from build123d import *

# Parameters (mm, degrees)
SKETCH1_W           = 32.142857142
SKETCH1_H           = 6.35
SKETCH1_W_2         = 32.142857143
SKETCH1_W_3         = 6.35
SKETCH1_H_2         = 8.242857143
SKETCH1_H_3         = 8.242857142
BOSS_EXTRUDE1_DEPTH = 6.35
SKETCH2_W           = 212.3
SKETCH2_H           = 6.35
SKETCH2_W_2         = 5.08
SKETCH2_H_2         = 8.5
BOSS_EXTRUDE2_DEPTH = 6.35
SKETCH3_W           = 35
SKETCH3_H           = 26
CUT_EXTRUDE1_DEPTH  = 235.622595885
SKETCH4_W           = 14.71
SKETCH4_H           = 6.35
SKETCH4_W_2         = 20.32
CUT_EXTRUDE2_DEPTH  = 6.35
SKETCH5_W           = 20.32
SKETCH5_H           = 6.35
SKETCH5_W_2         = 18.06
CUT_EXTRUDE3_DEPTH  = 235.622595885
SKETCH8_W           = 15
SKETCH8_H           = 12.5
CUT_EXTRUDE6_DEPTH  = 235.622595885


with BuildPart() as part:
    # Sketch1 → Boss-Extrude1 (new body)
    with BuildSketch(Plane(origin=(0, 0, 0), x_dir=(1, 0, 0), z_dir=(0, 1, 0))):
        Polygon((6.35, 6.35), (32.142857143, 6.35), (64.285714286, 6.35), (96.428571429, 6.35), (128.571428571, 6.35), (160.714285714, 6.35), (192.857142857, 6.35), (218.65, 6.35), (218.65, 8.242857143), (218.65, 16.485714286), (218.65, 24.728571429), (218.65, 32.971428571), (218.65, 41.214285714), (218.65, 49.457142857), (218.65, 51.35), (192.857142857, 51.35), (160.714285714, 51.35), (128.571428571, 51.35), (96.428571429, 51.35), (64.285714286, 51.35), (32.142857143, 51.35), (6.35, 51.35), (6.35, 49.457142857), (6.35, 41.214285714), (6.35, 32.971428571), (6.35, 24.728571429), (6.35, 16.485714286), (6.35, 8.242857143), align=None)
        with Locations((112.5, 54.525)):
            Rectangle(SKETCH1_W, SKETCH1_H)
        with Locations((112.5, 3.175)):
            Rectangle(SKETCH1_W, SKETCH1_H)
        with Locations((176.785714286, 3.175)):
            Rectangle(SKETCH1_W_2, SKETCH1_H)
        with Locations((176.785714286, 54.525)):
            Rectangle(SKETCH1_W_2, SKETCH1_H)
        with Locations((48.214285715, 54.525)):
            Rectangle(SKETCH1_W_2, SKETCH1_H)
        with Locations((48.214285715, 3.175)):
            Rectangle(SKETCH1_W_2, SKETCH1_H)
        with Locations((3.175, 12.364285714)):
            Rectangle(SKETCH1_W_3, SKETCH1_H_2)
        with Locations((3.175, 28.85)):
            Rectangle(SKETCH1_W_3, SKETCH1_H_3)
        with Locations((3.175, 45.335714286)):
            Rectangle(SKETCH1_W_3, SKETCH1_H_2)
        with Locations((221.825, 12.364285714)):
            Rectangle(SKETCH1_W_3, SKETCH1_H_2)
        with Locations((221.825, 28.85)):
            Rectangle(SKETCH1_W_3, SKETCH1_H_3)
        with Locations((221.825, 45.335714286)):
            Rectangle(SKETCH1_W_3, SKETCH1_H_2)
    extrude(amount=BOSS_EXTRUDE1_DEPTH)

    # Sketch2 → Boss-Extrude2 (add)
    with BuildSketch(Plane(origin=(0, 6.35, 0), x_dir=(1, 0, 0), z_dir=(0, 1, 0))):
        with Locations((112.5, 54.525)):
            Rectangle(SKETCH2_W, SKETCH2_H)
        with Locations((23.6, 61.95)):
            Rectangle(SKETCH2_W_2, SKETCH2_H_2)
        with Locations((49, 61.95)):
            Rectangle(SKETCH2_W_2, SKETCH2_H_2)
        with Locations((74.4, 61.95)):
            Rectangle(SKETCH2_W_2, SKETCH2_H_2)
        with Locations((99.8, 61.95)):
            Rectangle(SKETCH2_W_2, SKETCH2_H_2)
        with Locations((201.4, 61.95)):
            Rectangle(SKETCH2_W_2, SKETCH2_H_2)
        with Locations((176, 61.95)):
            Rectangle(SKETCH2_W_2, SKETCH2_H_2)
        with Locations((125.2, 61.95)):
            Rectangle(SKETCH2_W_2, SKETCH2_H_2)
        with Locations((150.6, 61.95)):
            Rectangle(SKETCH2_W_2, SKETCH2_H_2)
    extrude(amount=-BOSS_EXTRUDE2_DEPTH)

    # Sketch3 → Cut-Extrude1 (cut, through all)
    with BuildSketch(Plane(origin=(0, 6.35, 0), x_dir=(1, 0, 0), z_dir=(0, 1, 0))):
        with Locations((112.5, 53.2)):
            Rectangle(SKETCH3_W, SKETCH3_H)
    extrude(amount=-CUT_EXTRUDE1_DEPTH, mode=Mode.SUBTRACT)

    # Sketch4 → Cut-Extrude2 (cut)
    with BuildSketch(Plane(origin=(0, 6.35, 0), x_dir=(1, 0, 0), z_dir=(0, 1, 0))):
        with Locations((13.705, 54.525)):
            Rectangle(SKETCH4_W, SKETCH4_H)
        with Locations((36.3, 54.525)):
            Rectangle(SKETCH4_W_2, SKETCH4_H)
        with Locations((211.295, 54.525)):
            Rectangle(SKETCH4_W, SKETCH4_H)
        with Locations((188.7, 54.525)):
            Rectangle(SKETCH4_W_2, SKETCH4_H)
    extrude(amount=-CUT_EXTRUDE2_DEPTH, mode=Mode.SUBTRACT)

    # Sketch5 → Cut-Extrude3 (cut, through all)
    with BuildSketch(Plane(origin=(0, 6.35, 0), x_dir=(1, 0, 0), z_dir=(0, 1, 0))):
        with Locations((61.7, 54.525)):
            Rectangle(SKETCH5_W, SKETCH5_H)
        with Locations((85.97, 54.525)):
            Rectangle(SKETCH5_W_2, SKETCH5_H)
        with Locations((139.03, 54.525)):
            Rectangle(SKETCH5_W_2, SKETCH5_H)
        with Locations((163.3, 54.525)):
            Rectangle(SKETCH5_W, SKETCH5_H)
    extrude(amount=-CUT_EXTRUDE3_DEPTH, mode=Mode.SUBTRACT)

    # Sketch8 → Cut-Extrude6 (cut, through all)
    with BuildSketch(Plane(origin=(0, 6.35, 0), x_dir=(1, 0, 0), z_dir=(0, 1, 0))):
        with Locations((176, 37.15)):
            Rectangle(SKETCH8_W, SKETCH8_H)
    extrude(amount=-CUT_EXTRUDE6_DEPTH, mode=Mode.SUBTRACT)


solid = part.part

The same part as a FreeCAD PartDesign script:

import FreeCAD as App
import Part
import Sketcher


def add_polygon(sketch, points):
    """Adds a closed chain of lines whose ends are joined by coincident constraints."""
    first, n = sketch.GeometryCount, len(points)
    for a, b in zip(points, points[1:] + points[:1]):
        sketch.addGeometry(Part.LineSegment(App.Vector(*a, 0), App.Vector(*b, 0)), False)
    for i in range(n):
        sketch.addConstraint(Sketcher.Constraint("Coincident", first + i, 2, first + (i + 1) % n, 1))

doc = App.newDocument("Part")
body = doc.addObject("PartDesign::Body", "Body")

# Sketch on XZ plane
sketch1 = body.newObject("Sketcher::SketchObject", "Sketch")
sketch1.AttachmentSupport = (doc.getObject("XZ_Plane"), [""])
sketch1.MapMode = "FlatFace"
add_polygon(sketch1, [(6.35, -6.35), (32.142857, -6.35), (32.142857, 0), (64.285714, 0), (64.285714, -6.35), (96.428571, -6.35), (96.428571, 0), (128.571429, 0), (128.571429, -6.35), (160.714286, -6.35), (160.714286, 0), (192.857143, 0), (192.857143, -6.35), (218.65, -6.35), (218.65, -8.242857), (225, -8.242857), (225, -16.485714), (218.65, -16.485714), (218.65, -24.728571), (225, -24.728571), (225, -32.971429), (218.65, -32.971429), (218.65, -41.214286), (225, -41.214286), (225, -49.457143), (218.65, -49.457143), (218.65, -51.35), (192.857143, -51.35), (192.857143, -57.7), (160.714286, -57.7), (160.714286, -51.35), (128.571429, -51.35), (128.571429, -57.7), (96.428571, -57.7), (96.428571, -51.35), (64.285714, -51.35), (64.285714, -57.7), (32.142857, -57.7), (32.142857, -51.35), (6.35, -51.35), (6.35, -49.457143), (0, -49.457143), (0, -41.214286), (6.35, -41.214286), (6.35, -32.971429), (0, -32.971429), (0, -24.728571), (6.35, -24.728571), (6.35, -16.485714), (0, -16.485714), (0, -8.242857), (6.35, -8.242857)])  # lines 0-51
sketch1.addConstraint(Sketcher.Constraint("Horizontal", 0))
sketch1.addConstraint(Sketcher.Constraint("Vertical", 1))
sketch1.addConstraint(Sketcher.Constraint("Horizontal", 2))
sketch1.addConstraint(Sketcher.Constraint("Vertical", 3))
sketch1.addConstraint(Sketcher.Constraint("Horizontal", 4))
sketch1.addConstraint(Sketcher.Constraint("Vertical", 5))
sketch1.addConstraint(Sketcher.Constraint("Horizontal", 6))
sketch1.addConstraint(Sketcher.Constraint("Vertical", 7))
sketch1.addConstraint(Sketcher.Constraint("Horizontal", 8))
sketch1.addConstraint(Sketcher.Constraint("Vertical", 9))
sketch1.addConstraint(Sketcher.Constraint("Horizontal", 10))
sketch1.addConstraint(Sketcher.Constraint("Vertical", 11))
sketch1.addConstraint(Sketcher.Constraint("Horizontal", 12))
sketch1.addConstraint(Sketcher.Constraint("Vertical", 13))
sketch1.addConstraint(Sketcher.Constraint("Horizontal", 14))
sketch1.addConstraint(Sketcher.Constraint("Vertical", 15))
sketch1.addConstraint(Sketcher.Constraint("Horizontal", 16))
sketch1.addConstraint(Sketcher.Constraint("Vertical", 17))
sketch1.addConstraint(Sketcher.Constraint("Horizontal", 18))
sketch1.addConstraint(Sketcher.Constraint("Vertical", 19))
sketch1.addConstraint(Sketcher.Constraint("Horizontal", 20))
sketch1.addConstraint(Sketcher.Constraint("Vertical", 21))
sketch1.addConstraint(Sketcher.Constraint("Horizontal", 22))
sketch1.addConstraint(Sketcher.Constraint("Vertical", 23))
sketch1.addConstraint(Sketcher.Constraint("Horizontal", 24))
sketch1.addConstraint(Sketcher.Constraint("Vertical", 25))
sketch1.addConstraint(Sketcher.Constraint("Horizontal", 26))
sketch1.addConstraint(Sketcher.Constraint("Vertical", 27))
sketch1.addConstraint(Sketcher.Constraint("Horizontal", 28))
sketch1.addConstraint(Sketcher.Constraint("Vertical", 29))
sketch1.addConstraint(Sketcher.Constraint("Horizontal", 30))
sketch1.addConstraint(Sketcher.Constraint("Vertical", 31))
sketch1.addConstraint(Sketcher.Constraint("Horizontal", 32))
sketch1.addConstraint(Sketcher.Constraint("Vertical", 33))
sketch1.addConstraint(Sketcher.Constraint("Horizontal", 34))
sketch1.addConstraint(Sketcher.Constraint("Vertical", 35))
sketch1.addConstraint(Sketcher.Constraint("Horizontal", 36))
sketch1.addConstraint(Sketcher.Constraint("Vertical", 37))
sketch1.addConstraint(Sketcher.Constraint("Horizontal", 38))
sketch1.addConstraint(Sketcher.Constraint("Vertical", 39))
sketch1.addConstraint(Sketcher.Constraint("Horizontal", 40))
sketch1.addConstraint(Sketcher.Constraint("Vertical", 41))
sketch1.addConstraint(Sketcher.Constraint("Horizontal", 42))
sketch1.addConstraint(Sketcher.Constraint("Vertical", 43))
sketch1.addConstraint(Sketcher.Constraint("Horizontal", 44))
sketch1.addConstraint(Sketcher.Constraint("Vertical", 45))
sketch1.addConstraint(Sketcher.Constraint("Horizontal", 46))
sketch1.addConstraint(Sketcher.Constraint("Vertical", 47))
sketch1.addConstraint(Sketcher.Constraint("Horizontal", 48))
sketch1.addConstraint(Sketcher.Constraint("Vertical", 49))
sketch1.addConstraint(Sketcher.Constraint("Horizontal", 50))
sketch1.addConstraint(Sketcher.Constraint("Vertical", 51))
sketch1.addConstraint(Sketcher.Constraint("PointOnObject", 1, 2, -1))
sketch1.addConstraint(Sketcher.Constraint("PointOnObject", 5, 2, -1))
sketch1.addConstraint(Sketcher.Constraint("PointOnObject", 9, 2, -1))
sketch1.addConstraint(Sketcher.Constraint("PointOnObject", 40, 2, -2))
sketch1.addConstraint(Sketcher.Constraint("PointOnObject", 44, 2, -2))
sketch1.addConstraint(Sketcher.Constraint("PointOnObject", 48, 2, -2))
sketch1.addConstraint(Sketcher.Constraint("Horizontal", 0, 2, 3, 2))
sketch1.addConstraint(Sketcher.Constraint("Horizontal", 4, 2, 7, 2))
sketch1.addConstraint(Sketcher.Constraint("Horizontal", 8, 2, 11, 2))
sketch1.addConstraint(Sketcher.Constraint("Horizontal", 26, 2, 29, 2))
sketch1.addConstraint(Sketcher.Constraint("Horizontal", 28, 2, 31, 2))
sketch1.addConstraint(Sketcher.Constraint("Horizontal", 30, 2, 33, 2))
sketch1.addConstraint(Sketcher.Constraint("Horizontal", 32, 2, 35, 2))
sketch1.addConstraint(Sketcher.Constraint("Horizontal", 34, 2, 37, 2))
sketch1.addConstraint(Sketcher.Constraint("Horizontal", 24, 2, 39, 2))
sketch1.addConstraint(Sketcher.Constraint("Horizontal", 22, 2, 41, 2))
sketch1.addConstraint(Sketcher.Constraint("Horizontal", 20, 2, 43, 2))
sketch1.addConstraint(Sketcher.Constraint("Horizontal", 18, 2, 45, 2))
sketch1.addConstraint(Sketcher.Constraint("Horizontal", 16, 2, 47, 2))
sketch1.addConstraint(Sketcher.Constraint("Horizontal", 14, 2, 49, 2))
sketch1.addConstraint(Sketcher.Constraint("Vertical", 13, 2, 16, 2))
sketch1.addConstraint(Sketcher.Constraint("Vertical", 15, 2, 18, 2))
sketch1.addConstraint(Sketcher.Constraint("Vertical", 17, 2, 20, 2))
sketch1.addConstraint(Sketcher.Constraint("Vertical", 19, 2, 22, 2))
sketch1.addConstraint(Sketcher.Constraint("Vertical", 21, 2, 24, 2))
sketch1.addConstraint(Sketcher.Constraint("Vertical", 11, 2, 26, 2))
sketch1.addConstraint(Sketcher.Constraint("Vertical", 9, 2, 28, 2))
sketch1.addConstraint(Sketcher.Constraint("Vertical", 7, 2, 30, 2))
sketch1.addConstraint(Sketcher.Constraint("Vertical", 5, 2, 32, 2))
sketch1.addConstraint(Sketcher.Constraint("Vertical", 3, 2, 34, 2))
sketch1.addConstraint(Sketcher.Constraint("Vertical", 1, 2, 36, 2))
sketch1.addConstraint(Sketcher.Constraint("Vertical", 39, 2, 42, 2))
sketch1.addConstraint(Sketcher.Constraint("Vertical", 43, 2, 46, 2))
sketch1.addConstraint(Sketcher.Constraint("Vertical", 47, 2, 50, 2))
sketch1.addConstraint(Sketcher.Constraint("Equal", 2, 4))
sketch1.addConstraint(Sketcher.Constraint("Equal", 4, 6))
sketch1.addConstraint(Sketcher.Constraint("Equal", 6, 8))
sketch1.addConstraint(Sketcher.Constraint("Equal", 8, 10))
sketch1.addConstraint(Sketcher.Constraint("Equal", 0, 12))
sketch1.addConstraint(Sketcher.Constraint("Equal", 24, 40))
sketch1.addConstraint(Sketcher.Constraint("Equal", 50, 1))
sketch1.addConstraint(Sketcher.Constraint("Equal", 15, 17))
sketch1.addConstraint(Sketcher.Constraint("Equal", 17, 19))
sketch1.addConstraint(Sketcher.Constraint("Equal", 19, 21))
sketch1.addConstraint(Sketcher.Constraint("Equal", 21, 23))
sketch1.addConstraint(Sketcher.Constraint("Equal", 13, 25))
sketch1.addConstraint(Sketcher.Constraint("Equal", 11, 27))
sketch1.addConstraint(Sketcher.Constraint("DistanceX", -1, 1, 14, 2, 225.0))
sketch1.addConstraint(Sketcher.Constraint("DistanceY", 29, 2, 8, 2, 45.0))
sketch1.addConstraint(Sketcher.Constraint("DistanceX", 14, 1, 14, 2, 6.35))
sketch1.addConstraint(Sketcher.Constraint("DistanceX", 0, 1, 0, 2, 25.792857))
sketch1.addConstraint(Sketcher.Constraint("DistanceY", 13, 2, 13, 1, 1.892857))
pad1 = body.newObject("PartDesign::Pad", "Pad")
pad1.Profile = sketch1
pad1.Length = 6.35
pad1.Reversed = True

# Sketch on XZ plane
sketch2 = body.newObject("Sketcher::SketchObject", "Sketch001")
sketch2.AttachmentSupport = (doc.getObject("XZ_Plane"), [""])
sketch2.MapMode = "FlatFace"
sketch2.AttachmentOffset = App.Placement(App.Vector(0, 0, -6.35), App.Rotation())
add_polygon(sketch2, [(6.35, -57.7), (6.35, -51.35), (218.65, -51.35), (218.65, -57.7), (203.94, -57.7), (203.94, -66.2), (198.86, -66.2), (198.86, -57.7), (178.54, -57.7), (178.54, -66.2), (173.46, -66.2), (173.46, -57.7), (153.14, -57.7), (153.14, -66.2), (148.06, -66.2), (148.06, -57.7), (127.74, -57.7), (127.74, -66.2), (122.66, -66.2), (122.66, -57.7), (102.34, -57.7), (102.34, -66.2), (97.26, -66.2), (97.26, -57.7), (76.94, -57.7), (76.94, -66.2), (71.86, -66.2), (71.86, -57.7), (51.54, -57.7), (51.54, -66.2), (46.46, -66.2), (46.46, -57.7), (26.14, -57.7), (26.14, -66.2), (21.06, -66.2), (21.06, -57.7)])  # lines 0-35
sketch2.addConstraint(Sketcher.Constraint("Vertical", 0))
sketch2.addConstraint(Sketcher.Constraint("Horizontal", 1))
sketch2.addConstraint(Sketcher.Constraint("Vertical", 2))
sketch2.addConstraint(Sketcher.Constraint("Horizontal", 3))
sketch2.addConstraint(Sketcher.Constraint("Vertical", 4))
sketch2.addConstraint(Sketcher.Constraint("Horizontal", 5))
sketch2.addConstraint(Sketcher.Constraint("Vertical", 6))
sketch2.addConstraint(Sketcher.Constraint("Horizontal", 7))
sketch2.addConstraint(Sketcher.Constraint("Vertical", 8))
sketch2.addConstraint(Sketcher.Constraint("Horizontal", 9))
sketch2.addConstraint(Sketcher.Constraint("Vertical", 10))
sketch2.addConstraint(Sketcher.Constraint("Horizontal", 11))
sketch2.addConstraint(Sketcher.Constraint("Vertical", 12))
sketch2.addConstraint(Sketcher.Constraint("Horizontal", 13))
sketch2.addConstraint(Sketcher.Constraint("Vertical", 14))
sketch2.addConstraint(Sketcher.Constraint("Horizontal", 15))
sketch2.addConstraint(Sketcher.Constraint("Vertical", 16))
sketch2.addConstraint(Sketcher.Constraint("Horizontal", 17))
sketch2.addConstraint(Sketcher.Constraint("Vertical", 18))
sketch2.addConstraint(Sketcher.Constraint("Horizontal", 19))
sketch2.addConstraint(Sketcher.Constraint("Vertical", 20))
sketch2.addConstraint(Sketcher.Constraint("Horizontal", 21))
sketch2.addConstraint(Sketcher.Constraint("Vertical", 22))
sketch2.addConstraint(Sketcher.Constraint("Horizontal", 23))
sketch2.addConstraint(Sketcher.Constraint("Vertical", 24))
sketch2.addConstraint(Sketcher.Constraint("Horizontal", 25))
sketch2.addConstraint(Sketcher.Constraint("Vertical", 26))
sketch2.addConstraint(Sketcher.Constraint("Horizontal", 27))
sketch2.addConstraint(Sketcher.Constraint("Vertical", 28))
sketch2.addConstraint(Sketcher.Constraint("Horizontal", 29))
sketch2.addConstraint(Sketcher.Constraint("Vertical", 30))
sketch2.addConstraint(Sketcher.Constraint("Horizontal", 31))
sketch2.addConstraint(Sketcher.Constraint("Vertical", 32))
sketch2.addConstraint(Sketcher.Constraint("Horizontal", 33))
sketch2.addConstraint(Sketcher.Constraint("Vertical", 34))
sketch2.addConstraint(Sketcher.Constraint("Horizontal", 35))
sketch2.addConstraint(Sketcher.Constraint("Horizontal", 3, 2, 6, 2))
sketch2.addConstraint(Sketcher.Constraint("Horizontal", 5, 2, 8, 2))
sketch2.addConstraint(Sketcher.Constraint("Horizontal", 7, 2, 10, 2))
sketch2.addConstraint(Sketcher.Constraint("Horizontal", 9, 2, 12, 2))
sketch2.addConstraint(Sketcher.Constraint("Horizontal", 11, 2, 14, 2))
sketch2.addConstraint(Sketcher.Constraint("Horizontal", 13, 2, 16, 2))
sketch2.addConstraint(Sketcher.Constraint("Horizontal", 15, 2, 18, 2))
sketch2.addConstraint(Sketcher.Constraint("Horizontal", 17, 2, 20, 2))
sketch2.addConstraint(Sketcher.Constraint("Horizontal", 19, 2, 22, 2))
sketch2.addConstraint(Sketcher.Constraint("Horizontal", 21, 2, 24, 2))
sketch2.addConstraint(Sketcher.Constraint("Horizontal", 23, 2, 26, 2))
sketch2.addConstraint(Sketcher.Constraint("Horizontal", 25, 2, 28, 2))
sketch2.addConstraint(Sketcher.Constraint("Horizontal", 27, 2, 30, 2))
sketch2.addConstraint(Sketcher.Constraint("Horizontal", 29, 2, 32, 2))
sketch2.addConstraint(Sketcher.Constraint("Horizontal", 31, 2, 34, 2))
sketch2.addConstraint(Sketcher.Constraint("Equal", 5, 9))
sketch2.addConstraint(Sketcher.Constraint("Equal", 7, 11))
sketch2.addConstraint(Sketcher.Constraint("Equal", 9, 13))
sketch2.addConstraint(Sketcher.Constraint("Equal", 11, 15))
sketch2.addConstraint(Sketcher.Constraint("Equal", 13, 17))
sketch2.addConstraint(Sketcher.Constraint("Equal", 15, 19))
sketch2.addConstraint(Sketcher.Constraint("Equal", 17, 21))
sketch2.addConstraint(Sketcher.Constraint("Equal", 19, 23))
sketch2.addConstraint(Sketcher.Constraint("Equal", 21, 25))
sketch2.addConstraint(Sketcher.Constraint("Equal", 23, 27))
sketch2.addConstraint(Sketcher.Constraint("Equal", 25, 29))
sketch2.addConstraint(Sketcher.Constraint("Equal", 27, 31))
sketch2.addConstraint(Sketcher.Constraint("Equal", 29, 33))
sketch2.addConstraint(Sketcher.Constraint("Equal", 3, 35))
sketch2.addConstraint(Sketcher.Constraint("DistanceX", 1, 1, 1, 2, 212.3))
sketch2.addConstraint(Sketcher.Constraint("DistanceY", 4, 2, 4, 1, 8.5))
sketch2.addConstraint(Sketcher.Constraint("DistanceX", 3, 2, 3, 1, 14.71))
sketch2.addConstraint(Sketcher.Constraint("DistanceX", 5, 2, 5, 1, 5.08))
sketch2.addConstraint(Sketcher.Constraint("DistanceY", 0, 1, 0, 2, 6.35))
sketch2.addConstraint(Sketcher.Constraint("DistanceY", 2, 2, -1, 1, 57.7))
sketch2.addConstraint(Sketcher.Constraint("DistanceX", -1, 1, 0, 2, 6.35))
pad2 = body.newObject("PartDesign::Pad", "Pad001")
pad2.Profile = sketch2
pad2.Length = 6.35

# Sketch on XZ plane
sketch3 = body.newObject("Sketcher::SketchObject", "Sketch002")
sketch3.AttachmentSupport = (doc.getObject("XZ_Plane"), [""])
sketch3.MapMode = "FlatFace"
sketch3.AttachmentOffset = App.Placement(App.Vector(0, 0, -6.35), App.Rotation())
add_polygon(sketch3, [(95, -66.2), (95, -40.2), (130, -40.2), (130, -66.2)])  # lines 0-3
sketch3.addConstraint(Sketcher.Constraint("Vertical", 0))
sketch3.addConstraint(Sketcher.Constraint("Horizontal", 1))
sketch3.addConstraint(Sketcher.Constraint("Vertical", 2))
sketch3.addConstraint(Sketcher.Constraint("Horizontal", 3))
sketch3.addConstraint(Sketcher.Constraint("DistanceX", 1, 1, 1, 2, 35.0))
sketch3.addConstraint(Sketcher.Constraint("DistanceY", 0, 1, 0, 2, 26.0))
sketch3.addConstraint(Sketcher.Constraint("DistanceX", -1, 1, 0, 2, 95.0))
sketch3.addConstraint(Sketcher.Constraint("DistanceY", 0, 2, -1, 1, 40.2))
pocket1 = body.newObject("PartDesign::Pocket", "Pocket")
pocket1.Profile = sketch3
pocket1.Type = "ThroughAll"
pocket1.Reversed = True

# Sketch on XZ plane
sketch4 = body.newObject("Sketcher::SketchObject", "Sketch003")
sketch4.AttachmentSupport = (doc.getObject("XZ_Plane"), [""])
sketch4.MapMode = "FlatFace"
sketch4.AttachmentOffset = App.Placement(App.Vector(0, 0, -6.35), App.Rotation())
add_polygon(sketch4, [(6.35, -57.7), (6.35, -51.35), (21.06, -51.35), (21.06, -57.7)])  # lines 0-3
add_polygon(sketch4, [(26.14, -57.7), (26.14, -51.35), (46.46, -51.35), (46.46, -57.7)])  # lines 4-7
add_polygon(sketch4, [(203.94, -57.7), (203.94, -51.35), (218.65, -51.35), (218.65, -57.7)])  # lines 8-11
add_polygon(sketch4, [(178.54, -57.7), (178.54, -51.35), (198.86, -51.35), (198.86, -57.7)])  # lines 12-15
sketch4.addConstraint(Sketcher.Constraint("Vertical", 0))
sketch4.addConstraint(Sketcher.Constraint("Horizontal", 1))
sketch4.addConstraint(Sketcher.Constraint("Vertical", 2))
sketch4.addConstraint(Sketcher.Constraint("Horizontal", 3))
sketch4.addConstraint(Sketcher.Constraint("Vertical", 4))
sketch4.addConstraint(Sketcher.Constraint("Horizontal", 5))
sketch4.addConstraint(Sketcher.Constraint("Vertical", 6))
sketch4.addConstraint(Sketcher.Constraint("Horizontal", 7))
sketch4.addConstraint(Sketcher.Constraint("Vertical", 8))
sketch4.addConstraint(Sketcher.Constraint("Horizontal", 9))
sketch4.addConstraint(Sketcher.Constraint("Vertical", 10))
sketch4.addConstraint(Sketcher.Constraint("Horizontal", 11))
sketch4.addConstraint(Sketcher.Constraint("Vertical", 12))
sketch4.addConstraint(Sketcher.Constraint("Horizontal", 13))
sketch4.addConstraint(Sketcher.Constraint("Vertical", 14))
sketch4.addConstraint(Sketcher.Constraint("Horizontal", 15))
sketch4.addConstraint(Sketcher.Constraint("Horizontal", 1, 2, 4, 2))
sketch4.addConstraint(Sketcher.Constraint("Horizontal", 3, 2, 6, 2))
sketch4.addConstraint(Sketcher.Constraint("Horizontal", 5, 2, 8, 2))
sketch4.addConstraint(Sketcher.Constraint("Horizontal", 7, 2, 10, 2))
sketch4.addConstraint(Sketcher.Constraint("Horizontal", 9, 2, 12, 2))
sketch4.addConstraint(Sketcher.Constraint("Horizontal", 11, 2, 14, 2))
sketch4.addConstraint(Sketcher.Constraint("Equal", 3, 9))
sketch4.addConstraint(Sketcher.Constraint("Equal", 7, 13))
sketch4.addConstraint(Sketcher.Constraint("DistanceX", 1, 1, 1, 2, 14.71))
sketch4.addConstraint(Sketcher.Constraint("DistanceX", 5, 1, 5, 2, 20.32))
sketch4.addConstraint(Sketcher.Constraint("DistanceY", 0, 1, 0, 2, 6.35))
sketch4.addConstraint(Sketcher.Constraint("DistanceY", 2, 2, -1, 1, 57.7))
sketch4.addConstraint(Sketcher.Constraint("DistanceX", 1, 2, 5, 2, 25.4))
sketch4.addConstraint(Sketcher.Constraint("DistanceX", 4, 2, 8, 2, 177.8))
sketch4.addConstraint(Sketcher.Constraint("DistanceX", 12, 2, 8, 2, 25.4))
sketch4.addConstraint(Sketcher.Constraint("DistanceX", -1, 1, 0, 2, 6.35))
pocket2 = body.newObject("PartDesign::Pocket", "Pocket001")
pocket2.Profile = sketch4
pocket2.Length = 6.35
pocket2.Reversed = True

# Sketch on XZ plane
sketch5 = body.newObject("Sketcher::SketchObject", "Sketch004")
sketch5.AttachmentSupport = (doc.getObject("XZ_Plane"), [""])
sketch5.MapMode = "FlatFace"
sketch5.AttachmentOffset = App.Placement(App.Vector(0, 0, -6.35), App.Rotation())
add_polygon(sketch5, [(51.54, -57.7), (51.54, -51.35), (71.86, -51.35), (71.86, -57.7)])  # lines 0-3
add_polygon(sketch5, [(76.94, -57.7), (76.94, -51.35), (95, -51.35), (95, -57.7)])  # lines 4-7
add_polygon(sketch5, [(130, -57.7), (130, -51.35), (148.06, -51.35), (148.06, -57.7)])  # lines 8-11
add_polygon(sketch5, [(153.14, -57.7), (153.14, -51.35), (173.46, -51.35), (173.46, -57.7)])  # lines 12-15
sketch5.addConstraint(Sketcher.Constraint("Vertical", 0))
sketch5.addConstraint(Sketcher.Constraint("Horizontal", 1))
sketch5.addConstraint(Sketcher.Constraint("Vertical", 2))
sketch5.addConstraint(Sketcher.Constraint("Horizontal", 3))
sketch5.addConstraint(Sketcher.Constraint("Vertical", 4))
sketch5.addConstraint(Sketcher.Constraint("Horizontal", 5))
sketch5.addConstraint(Sketcher.Constraint("Vertical", 6))
sketch5.addConstraint(Sketcher.Constraint("Horizontal", 7))
sketch5.addConstraint(Sketcher.Constraint("Vertical", 8))
sketch5.addConstraint(Sketcher.Constraint("Horizontal", 9))
sketch5.addConstraint(Sketcher.Constraint("Vertical", 10))
sketch5.addConstraint(Sketcher.Constraint("Horizontal", 11))
sketch5.addConstraint(Sketcher.Constraint("Vertical", 12))
sketch5.addConstraint(Sketcher.Constraint("Horizontal", 13))
sketch5.addConstraint(Sketcher.Constraint("Vertical", 14))
sketch5.addConstraint(Sketcher.Constraint("Horizontal", 15))
sketch5.addConstraint(Sketcher.Constraint("Horizontal", 1, 2, 4, 2))
sketch5.addConstraint(Sketcher.Constraint("Horizontal", 3, 2, 6, 2))
sketch5.addConstraint(Sketcher.Constraint("Horizontal", 5, 2, 8, 2))
sketch5.addConstraint(Sketcher.Constraint("Horizontal", 7, 2, 10, 2))
sketch5.addConstraint(Sketcher.Constraint("Horizontal", 9, 2, 12, 2))
sketch5.addConstraint(Sketcher.Constraint("Horizontal", 11, 2, 14, 2))
sketch5.addConstraint(Sketcher.Constraint("Equal", 7, 9))
sketch5.addConstraint(Sketcher.Constraint("Equal", 3, 13))
sketch5.addConstraint(Sketcher.Constraint("DistanceX", -1, 1, 5, 2, 95.0))
sketch5.addConstraint(Sketcher.Constraint("DistanceX", -1, 1, 8, 2, 130.0))
sketch5.addConstraint(Sketcher.Constraint("DistanceX", 1, 1, 1, 2, 20.32))
sketch5.addConstraint(Sketcher.Constraint("DistanceX", 5, 1, 5, 2, 18.06))
sketch5.addConstraint(Sketcher.Constraint("DistanceY", 0, 1, 0, 2, 6.35))
sketch5.addConstraint(Sketcher.Constraint("DistanceY", 2, 2, -1, 1, 57.7))
sketch5.addConstraint(Sketcher.Constraint("DistanceX", 0, 2, 4, 2, 25.4))
sketch5.addConstraint(Sketcher.Constraint("DistanceX", 9, 2, 13, 2, 25.4))
pocket3 = body.newObject("PartDesign::Pocket", "Pocket002")
pocket3.Profile = sketch5
pocket3.Type = "ThroughAll"
pocket3.Reversed = True

# Sketch on XZ plane
sketch6 = body.newObject("Sketcher::SketchObject", "Sketch005")
sketch6.AttachmentSupport = (doc.getObject("XZ_Plane"), [""])
sketch6.MapMode = "FlatFace"
sketch6.AttachmentOffset = App.Placement(App.Vector(0, 0, -6.35), App.Rotation())
add_polygon(sketch6, [(168.5, -43.4), (168.5, -30.9), (183.5, -30.9), (183.5, -43.4)])  # lines 0-3
sketch6.addConstraint(Sketcher.Constraint("Vertical", 0))
sketch6.addConstraint(Sketcher.Constraint("Horizontal", 1))
sketch6.addConstraint(Sketcher.Constraint("Vertical", 2))
sketch6.addConstraint(Sketcher.Constraint("Horizontal", 3))
sketch6.addConstraint(Sketcher.Constraint("DistanceX", 1, 1, 1, 2, 15.0))
sketch6.addConstraint(Sketcher.Constraint("DistanceY", 0, 1, 0, 2, 12.5))
sketch6.addConstraint(Sketcher.Constraint("DistanceX", -1, 1, 0, 2, 168.5))
sketch6.addConstraint(Sketcher.Constraint("DistanceY", 0, 2, -1, 1, 30.9))
pocket4 = body.newObject("PartDesign::Pocket", "Pocket003")
pocket4.Profile = sketch6
pocket4.Type = "ThroughAll"
pocket4.Reversed = True

doc.recompute()
